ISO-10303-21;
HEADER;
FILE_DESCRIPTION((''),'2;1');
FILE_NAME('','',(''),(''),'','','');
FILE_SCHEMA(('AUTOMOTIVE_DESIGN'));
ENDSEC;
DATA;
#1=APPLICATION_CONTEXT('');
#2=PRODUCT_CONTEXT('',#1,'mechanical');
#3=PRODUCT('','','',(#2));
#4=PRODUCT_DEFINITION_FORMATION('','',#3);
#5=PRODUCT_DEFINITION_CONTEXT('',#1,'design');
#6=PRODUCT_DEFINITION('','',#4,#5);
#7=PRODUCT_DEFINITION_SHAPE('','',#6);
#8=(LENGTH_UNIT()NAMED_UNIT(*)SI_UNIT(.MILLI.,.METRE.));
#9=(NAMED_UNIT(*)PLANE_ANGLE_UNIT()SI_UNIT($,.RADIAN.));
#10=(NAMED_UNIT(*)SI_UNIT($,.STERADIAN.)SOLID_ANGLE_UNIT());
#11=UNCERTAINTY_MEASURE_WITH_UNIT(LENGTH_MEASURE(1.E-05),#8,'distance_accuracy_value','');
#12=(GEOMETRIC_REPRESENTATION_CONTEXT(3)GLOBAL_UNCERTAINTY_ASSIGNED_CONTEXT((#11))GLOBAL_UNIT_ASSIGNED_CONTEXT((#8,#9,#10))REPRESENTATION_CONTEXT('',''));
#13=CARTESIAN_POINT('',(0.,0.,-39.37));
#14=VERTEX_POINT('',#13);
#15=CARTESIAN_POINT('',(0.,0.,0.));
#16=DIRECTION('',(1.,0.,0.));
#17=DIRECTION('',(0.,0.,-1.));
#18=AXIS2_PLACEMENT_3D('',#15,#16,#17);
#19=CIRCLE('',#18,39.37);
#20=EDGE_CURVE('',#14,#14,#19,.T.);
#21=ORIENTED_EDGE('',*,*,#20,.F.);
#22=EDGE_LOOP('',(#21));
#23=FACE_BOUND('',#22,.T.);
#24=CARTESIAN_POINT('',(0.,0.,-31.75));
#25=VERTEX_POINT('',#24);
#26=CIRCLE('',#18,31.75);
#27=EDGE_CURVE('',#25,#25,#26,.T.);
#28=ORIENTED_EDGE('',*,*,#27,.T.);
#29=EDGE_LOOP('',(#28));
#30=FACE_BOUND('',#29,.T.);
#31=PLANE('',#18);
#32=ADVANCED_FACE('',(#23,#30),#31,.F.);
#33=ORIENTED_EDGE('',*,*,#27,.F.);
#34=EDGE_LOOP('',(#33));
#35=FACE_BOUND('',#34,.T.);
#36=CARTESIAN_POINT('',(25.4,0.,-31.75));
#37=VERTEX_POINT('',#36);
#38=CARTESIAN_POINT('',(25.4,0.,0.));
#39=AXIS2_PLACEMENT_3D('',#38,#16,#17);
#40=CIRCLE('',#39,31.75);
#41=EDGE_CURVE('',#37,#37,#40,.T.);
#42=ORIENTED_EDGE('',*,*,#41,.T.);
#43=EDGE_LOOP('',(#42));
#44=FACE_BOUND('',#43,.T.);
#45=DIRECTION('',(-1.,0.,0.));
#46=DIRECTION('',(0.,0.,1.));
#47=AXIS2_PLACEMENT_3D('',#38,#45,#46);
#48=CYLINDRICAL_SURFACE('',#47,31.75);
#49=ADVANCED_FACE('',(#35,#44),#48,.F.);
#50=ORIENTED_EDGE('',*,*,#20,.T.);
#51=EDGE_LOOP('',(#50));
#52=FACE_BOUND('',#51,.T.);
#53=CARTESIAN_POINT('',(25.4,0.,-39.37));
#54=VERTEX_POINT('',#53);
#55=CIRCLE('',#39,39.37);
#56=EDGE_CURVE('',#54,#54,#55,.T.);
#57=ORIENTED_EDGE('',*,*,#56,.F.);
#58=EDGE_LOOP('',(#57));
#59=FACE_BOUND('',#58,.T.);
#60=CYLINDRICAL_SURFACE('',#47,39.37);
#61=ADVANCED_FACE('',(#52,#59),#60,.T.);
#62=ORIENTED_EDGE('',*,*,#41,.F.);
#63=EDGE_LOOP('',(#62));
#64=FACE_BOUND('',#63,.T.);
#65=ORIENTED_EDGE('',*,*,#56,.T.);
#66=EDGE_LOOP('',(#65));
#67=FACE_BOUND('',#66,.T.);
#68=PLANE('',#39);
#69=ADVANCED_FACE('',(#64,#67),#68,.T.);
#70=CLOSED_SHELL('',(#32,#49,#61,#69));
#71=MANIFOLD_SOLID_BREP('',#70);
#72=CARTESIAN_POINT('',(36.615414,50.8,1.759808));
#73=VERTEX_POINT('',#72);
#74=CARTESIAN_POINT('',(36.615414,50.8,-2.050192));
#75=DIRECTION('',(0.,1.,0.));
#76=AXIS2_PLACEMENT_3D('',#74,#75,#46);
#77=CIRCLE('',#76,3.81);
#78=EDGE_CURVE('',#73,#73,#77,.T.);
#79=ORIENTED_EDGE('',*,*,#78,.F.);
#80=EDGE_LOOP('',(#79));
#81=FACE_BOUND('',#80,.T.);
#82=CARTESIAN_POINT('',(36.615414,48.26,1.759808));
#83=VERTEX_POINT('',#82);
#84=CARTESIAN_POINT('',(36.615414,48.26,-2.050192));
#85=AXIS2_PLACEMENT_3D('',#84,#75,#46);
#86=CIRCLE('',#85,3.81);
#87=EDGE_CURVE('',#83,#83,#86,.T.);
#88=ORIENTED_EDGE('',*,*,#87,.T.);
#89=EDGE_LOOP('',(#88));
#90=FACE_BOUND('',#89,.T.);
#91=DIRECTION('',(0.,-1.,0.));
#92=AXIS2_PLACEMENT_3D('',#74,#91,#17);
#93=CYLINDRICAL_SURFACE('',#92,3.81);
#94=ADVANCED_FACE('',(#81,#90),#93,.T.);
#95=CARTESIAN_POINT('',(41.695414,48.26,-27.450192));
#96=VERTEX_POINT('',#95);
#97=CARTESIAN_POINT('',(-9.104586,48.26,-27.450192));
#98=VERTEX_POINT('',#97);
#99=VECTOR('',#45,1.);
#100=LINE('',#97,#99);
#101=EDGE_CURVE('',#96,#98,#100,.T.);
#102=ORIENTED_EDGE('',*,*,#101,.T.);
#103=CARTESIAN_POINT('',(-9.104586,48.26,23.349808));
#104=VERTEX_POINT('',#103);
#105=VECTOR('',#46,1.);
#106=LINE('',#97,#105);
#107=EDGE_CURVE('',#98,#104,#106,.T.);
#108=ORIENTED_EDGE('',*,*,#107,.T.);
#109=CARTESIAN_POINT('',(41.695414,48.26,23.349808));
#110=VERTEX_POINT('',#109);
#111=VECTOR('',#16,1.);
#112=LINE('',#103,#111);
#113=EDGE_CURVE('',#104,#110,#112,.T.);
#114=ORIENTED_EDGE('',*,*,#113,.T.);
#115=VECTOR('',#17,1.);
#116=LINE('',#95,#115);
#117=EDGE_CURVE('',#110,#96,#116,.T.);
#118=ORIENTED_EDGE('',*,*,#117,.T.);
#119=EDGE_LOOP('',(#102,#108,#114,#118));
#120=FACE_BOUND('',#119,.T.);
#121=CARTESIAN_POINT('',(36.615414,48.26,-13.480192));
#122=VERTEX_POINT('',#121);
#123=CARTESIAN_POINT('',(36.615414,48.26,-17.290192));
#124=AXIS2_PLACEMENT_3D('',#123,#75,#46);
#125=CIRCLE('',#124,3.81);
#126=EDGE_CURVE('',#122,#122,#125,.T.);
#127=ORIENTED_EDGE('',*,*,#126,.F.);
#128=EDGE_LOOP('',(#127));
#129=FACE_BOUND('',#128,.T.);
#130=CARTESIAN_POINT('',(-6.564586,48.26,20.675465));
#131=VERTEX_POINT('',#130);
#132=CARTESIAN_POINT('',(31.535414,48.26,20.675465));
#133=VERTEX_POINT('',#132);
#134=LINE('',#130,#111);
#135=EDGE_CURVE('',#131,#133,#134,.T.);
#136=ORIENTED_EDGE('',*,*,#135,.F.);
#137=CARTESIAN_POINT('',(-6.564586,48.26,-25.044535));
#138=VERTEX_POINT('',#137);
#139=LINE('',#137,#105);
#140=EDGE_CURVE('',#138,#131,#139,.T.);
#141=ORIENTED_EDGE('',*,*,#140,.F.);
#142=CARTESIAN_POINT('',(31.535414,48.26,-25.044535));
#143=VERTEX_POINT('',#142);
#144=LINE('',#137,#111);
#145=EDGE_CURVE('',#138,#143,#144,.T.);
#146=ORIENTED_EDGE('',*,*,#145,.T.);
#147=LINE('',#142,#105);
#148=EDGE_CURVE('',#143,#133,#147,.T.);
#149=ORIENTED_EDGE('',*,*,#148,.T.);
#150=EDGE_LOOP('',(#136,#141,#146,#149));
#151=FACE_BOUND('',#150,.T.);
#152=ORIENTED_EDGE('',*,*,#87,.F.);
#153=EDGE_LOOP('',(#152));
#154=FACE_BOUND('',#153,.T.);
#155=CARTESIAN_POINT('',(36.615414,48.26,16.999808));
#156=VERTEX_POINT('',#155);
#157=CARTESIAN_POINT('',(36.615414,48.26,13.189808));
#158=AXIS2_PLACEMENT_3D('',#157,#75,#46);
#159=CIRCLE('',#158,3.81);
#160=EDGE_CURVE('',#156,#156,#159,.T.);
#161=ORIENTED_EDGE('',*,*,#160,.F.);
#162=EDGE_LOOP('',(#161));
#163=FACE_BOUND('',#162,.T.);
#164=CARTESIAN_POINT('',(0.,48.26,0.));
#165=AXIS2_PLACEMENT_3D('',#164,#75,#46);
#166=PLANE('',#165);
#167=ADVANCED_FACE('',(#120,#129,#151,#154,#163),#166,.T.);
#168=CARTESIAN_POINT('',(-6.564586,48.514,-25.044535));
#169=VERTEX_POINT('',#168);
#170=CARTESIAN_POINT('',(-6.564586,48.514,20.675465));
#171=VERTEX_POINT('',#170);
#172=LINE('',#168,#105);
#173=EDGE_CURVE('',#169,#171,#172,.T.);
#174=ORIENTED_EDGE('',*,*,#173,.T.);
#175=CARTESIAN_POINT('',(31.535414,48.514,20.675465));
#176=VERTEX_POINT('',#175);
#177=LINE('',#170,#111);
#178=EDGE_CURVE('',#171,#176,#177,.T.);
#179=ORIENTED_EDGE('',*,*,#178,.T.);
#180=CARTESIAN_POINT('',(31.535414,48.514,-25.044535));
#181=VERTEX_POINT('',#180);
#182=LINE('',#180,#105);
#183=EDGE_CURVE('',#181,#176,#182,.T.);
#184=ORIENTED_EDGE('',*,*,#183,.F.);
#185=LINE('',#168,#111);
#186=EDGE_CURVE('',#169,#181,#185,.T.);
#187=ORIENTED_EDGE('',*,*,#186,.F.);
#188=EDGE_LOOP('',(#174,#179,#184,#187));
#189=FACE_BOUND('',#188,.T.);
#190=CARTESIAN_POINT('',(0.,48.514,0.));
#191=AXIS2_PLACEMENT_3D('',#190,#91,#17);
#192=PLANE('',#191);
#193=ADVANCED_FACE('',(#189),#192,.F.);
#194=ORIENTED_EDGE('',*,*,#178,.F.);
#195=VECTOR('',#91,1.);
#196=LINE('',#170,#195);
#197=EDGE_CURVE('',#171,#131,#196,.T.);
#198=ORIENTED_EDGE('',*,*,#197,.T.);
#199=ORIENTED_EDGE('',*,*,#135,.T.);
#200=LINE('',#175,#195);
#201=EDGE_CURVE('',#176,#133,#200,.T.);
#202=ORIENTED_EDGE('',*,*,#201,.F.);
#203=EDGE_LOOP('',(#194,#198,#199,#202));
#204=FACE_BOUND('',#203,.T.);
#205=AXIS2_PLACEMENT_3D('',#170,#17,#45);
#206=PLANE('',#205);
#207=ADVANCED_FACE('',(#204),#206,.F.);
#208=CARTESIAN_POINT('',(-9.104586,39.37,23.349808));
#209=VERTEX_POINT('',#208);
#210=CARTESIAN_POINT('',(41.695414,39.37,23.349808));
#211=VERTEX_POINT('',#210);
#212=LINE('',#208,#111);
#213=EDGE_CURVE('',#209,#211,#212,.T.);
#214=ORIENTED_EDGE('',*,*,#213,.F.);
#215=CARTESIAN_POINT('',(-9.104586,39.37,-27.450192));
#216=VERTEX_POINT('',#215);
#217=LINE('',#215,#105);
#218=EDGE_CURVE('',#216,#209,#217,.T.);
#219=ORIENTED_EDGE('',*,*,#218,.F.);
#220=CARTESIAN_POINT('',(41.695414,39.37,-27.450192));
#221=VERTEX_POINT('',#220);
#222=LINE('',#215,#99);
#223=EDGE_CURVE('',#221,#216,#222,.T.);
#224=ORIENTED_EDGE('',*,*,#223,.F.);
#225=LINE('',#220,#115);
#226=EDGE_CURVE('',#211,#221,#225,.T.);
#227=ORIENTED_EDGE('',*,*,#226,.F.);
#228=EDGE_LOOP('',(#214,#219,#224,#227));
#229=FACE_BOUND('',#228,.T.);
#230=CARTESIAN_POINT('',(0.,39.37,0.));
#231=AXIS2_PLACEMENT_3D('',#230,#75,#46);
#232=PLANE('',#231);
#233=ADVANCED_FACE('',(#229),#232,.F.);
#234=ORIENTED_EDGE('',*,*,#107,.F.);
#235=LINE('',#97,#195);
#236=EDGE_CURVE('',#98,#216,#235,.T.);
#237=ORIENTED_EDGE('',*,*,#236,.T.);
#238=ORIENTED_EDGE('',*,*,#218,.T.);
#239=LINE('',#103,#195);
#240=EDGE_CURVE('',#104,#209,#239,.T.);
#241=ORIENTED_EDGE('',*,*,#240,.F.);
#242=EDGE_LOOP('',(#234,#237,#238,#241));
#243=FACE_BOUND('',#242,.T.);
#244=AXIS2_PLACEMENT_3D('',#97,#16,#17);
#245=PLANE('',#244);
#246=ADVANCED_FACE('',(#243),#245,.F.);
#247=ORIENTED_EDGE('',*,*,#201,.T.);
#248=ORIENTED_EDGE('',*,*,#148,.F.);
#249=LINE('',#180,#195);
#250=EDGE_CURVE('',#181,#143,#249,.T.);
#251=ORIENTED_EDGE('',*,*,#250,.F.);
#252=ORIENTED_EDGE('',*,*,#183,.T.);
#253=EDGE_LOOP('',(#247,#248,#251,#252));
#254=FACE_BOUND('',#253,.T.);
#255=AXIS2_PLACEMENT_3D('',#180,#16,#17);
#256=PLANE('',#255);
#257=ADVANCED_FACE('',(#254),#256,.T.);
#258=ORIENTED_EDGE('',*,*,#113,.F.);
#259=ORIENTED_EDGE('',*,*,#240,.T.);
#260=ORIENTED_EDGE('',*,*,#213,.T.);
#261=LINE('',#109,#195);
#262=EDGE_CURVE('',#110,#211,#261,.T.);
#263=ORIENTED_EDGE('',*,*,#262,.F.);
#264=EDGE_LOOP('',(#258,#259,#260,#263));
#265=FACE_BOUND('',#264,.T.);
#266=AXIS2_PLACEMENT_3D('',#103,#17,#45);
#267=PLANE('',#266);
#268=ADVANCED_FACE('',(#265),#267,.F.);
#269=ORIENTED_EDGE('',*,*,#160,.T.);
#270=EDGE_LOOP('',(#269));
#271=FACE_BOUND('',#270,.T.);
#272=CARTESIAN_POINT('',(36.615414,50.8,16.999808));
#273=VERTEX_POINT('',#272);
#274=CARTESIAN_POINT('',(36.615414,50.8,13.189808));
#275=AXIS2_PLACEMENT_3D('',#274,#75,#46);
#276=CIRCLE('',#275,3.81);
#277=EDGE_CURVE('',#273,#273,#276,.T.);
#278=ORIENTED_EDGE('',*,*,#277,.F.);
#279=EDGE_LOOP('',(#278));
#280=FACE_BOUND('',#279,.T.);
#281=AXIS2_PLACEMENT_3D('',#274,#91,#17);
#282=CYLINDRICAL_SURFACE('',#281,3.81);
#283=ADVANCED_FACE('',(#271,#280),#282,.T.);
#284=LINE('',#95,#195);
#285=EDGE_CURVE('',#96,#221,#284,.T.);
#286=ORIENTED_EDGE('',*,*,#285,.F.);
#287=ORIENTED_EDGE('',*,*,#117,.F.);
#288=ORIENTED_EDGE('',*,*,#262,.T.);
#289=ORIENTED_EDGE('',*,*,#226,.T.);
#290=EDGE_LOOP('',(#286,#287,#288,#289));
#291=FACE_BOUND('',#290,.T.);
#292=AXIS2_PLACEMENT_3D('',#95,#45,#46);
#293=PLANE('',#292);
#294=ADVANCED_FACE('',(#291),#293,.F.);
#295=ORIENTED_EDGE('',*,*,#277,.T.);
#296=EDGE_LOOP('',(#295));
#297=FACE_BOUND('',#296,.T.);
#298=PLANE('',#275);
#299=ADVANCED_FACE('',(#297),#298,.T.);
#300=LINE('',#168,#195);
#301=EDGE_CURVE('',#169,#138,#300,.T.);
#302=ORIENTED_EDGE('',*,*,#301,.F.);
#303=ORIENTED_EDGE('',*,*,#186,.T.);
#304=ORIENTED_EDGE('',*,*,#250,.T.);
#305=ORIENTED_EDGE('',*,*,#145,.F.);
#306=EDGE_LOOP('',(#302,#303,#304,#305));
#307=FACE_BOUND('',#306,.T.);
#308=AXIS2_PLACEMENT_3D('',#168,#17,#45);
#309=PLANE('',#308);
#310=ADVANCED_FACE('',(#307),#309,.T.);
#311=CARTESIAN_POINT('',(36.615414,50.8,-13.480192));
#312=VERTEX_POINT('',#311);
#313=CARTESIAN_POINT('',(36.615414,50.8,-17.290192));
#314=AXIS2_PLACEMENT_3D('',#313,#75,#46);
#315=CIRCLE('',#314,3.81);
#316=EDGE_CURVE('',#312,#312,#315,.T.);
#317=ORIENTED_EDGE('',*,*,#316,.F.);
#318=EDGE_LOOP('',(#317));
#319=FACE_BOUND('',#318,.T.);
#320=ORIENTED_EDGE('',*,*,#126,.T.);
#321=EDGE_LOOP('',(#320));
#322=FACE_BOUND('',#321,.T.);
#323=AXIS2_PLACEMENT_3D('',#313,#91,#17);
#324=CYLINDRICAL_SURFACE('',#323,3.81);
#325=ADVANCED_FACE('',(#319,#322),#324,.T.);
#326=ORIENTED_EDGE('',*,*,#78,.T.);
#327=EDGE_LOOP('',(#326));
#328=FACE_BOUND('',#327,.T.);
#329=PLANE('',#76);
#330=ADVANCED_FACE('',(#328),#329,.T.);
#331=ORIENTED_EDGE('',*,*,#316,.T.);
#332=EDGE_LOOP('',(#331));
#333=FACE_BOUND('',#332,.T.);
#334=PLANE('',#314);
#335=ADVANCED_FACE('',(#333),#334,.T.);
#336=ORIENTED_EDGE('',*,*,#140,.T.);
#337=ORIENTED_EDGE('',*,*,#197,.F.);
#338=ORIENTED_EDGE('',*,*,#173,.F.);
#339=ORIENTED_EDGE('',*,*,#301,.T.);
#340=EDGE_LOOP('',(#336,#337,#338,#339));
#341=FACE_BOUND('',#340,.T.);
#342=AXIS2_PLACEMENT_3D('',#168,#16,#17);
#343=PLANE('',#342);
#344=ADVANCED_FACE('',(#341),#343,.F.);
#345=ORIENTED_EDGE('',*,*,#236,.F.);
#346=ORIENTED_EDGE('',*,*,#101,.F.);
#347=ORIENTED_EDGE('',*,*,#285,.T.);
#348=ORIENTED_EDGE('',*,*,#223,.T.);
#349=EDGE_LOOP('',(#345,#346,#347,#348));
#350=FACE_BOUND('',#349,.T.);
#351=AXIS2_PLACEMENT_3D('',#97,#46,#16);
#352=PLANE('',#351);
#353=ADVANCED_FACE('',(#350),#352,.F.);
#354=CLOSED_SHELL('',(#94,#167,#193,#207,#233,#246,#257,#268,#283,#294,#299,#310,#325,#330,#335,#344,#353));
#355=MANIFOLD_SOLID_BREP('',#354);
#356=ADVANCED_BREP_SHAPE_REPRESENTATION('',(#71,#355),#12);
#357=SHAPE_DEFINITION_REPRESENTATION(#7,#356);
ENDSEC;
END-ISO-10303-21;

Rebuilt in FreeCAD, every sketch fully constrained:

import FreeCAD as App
import Part
import Sketcher
from FreeCAD import Vector
Q = App.Units.Quantity

doc = App.newDocument("Part")
body = doc.addObject("PartDesign::Body", "Body")

sketch1 = doc.addObject("Sketcher::SketchObject", "Sketch")
body.addObject(sketch1)
sketch1.AttachmentSupport = (doc.YZ_Plane, [""])
sketch1.MapMode = "FlatFace"
sketch1.addGeometry([
    Part.Circle(Vector(0, 0, 0), Vector(0, 0, 1), 39),
    Part.Circle(Vector(0, 0, 0), Vector(0, 0, 1), 32),
], False)
sketch1.addConstraint([
    Sketcher.Constraint("Coincident", 0, 3, -1, 1),
    Sketcher.Constraint("Coincident", 1, 3, -1, 1),
    Sketcher.Constraint("Diameter", 0, Q("3.1 in")),
    Sketcher.Constraint("Diameter", 1, Q("2.5 in")),
])
pad1 = doc.addObject("PartDesign::Pad", "Pad")
body.addObject(pad1)
pad1.Profile = sketch1
pad1.Length = Q("1 in")
body2 = doc.addObject("PartDesign::Body", "Body001")

sketch2 = doc.addObject("Sketcher::SketchObject", "Sketch001")
body2.addObject(sketch2)
sketch2.AttachmentSupport = (doc.getObject("XZ_Plane001"), [""])
sketch2.MapMode = "FlatFace"
sketch2.AttachmentOffset = App.Placement(Vector(0, 0, -1.55 * 25.4), App.Rotation())
sketch2.addGeometry([
    Part.LineSegment(Vector(-9, -27, 0), Vector(-9, 23, 0)),
    Part.LineSegment(Vector(-9, 23, 0), Vector(42, 23, 0)),
    Part.LineSegment(Vector(42, 23, 0), Vector(42, -27, 0)),
    Part.LineSegment(Vector(42, -27, 0), Vector(-9, -27, 0)),
], False)
sketch2.addConstraint([
    Sketcher.Constraint("Coincident", 0, 2, 1, 1),
    Sketcher.Constraint("Coincident", 1, 2, 2, 1),
    Sketcher.Constraint("Coincident", 2, 2, 3, 1),
    Sketcher.Constraint("Coincident", 3, 2, 0, 1),
    Sketcher.Constraint("Vertical", 0),
    Sketcher.Constraint("Horizontal", 1),
    Sketcher.Constraint("Vertical", 2),
    Sketcher.Constraint("Horizontal", 3),
    Sketcher.Constraint("Equal", 3, 0),
    Sketcher.Constraint("DistanceX", 1, 1, 1, 2, Q("2 in")),
    Sketcher.Constraint("DistanceX", 0, 2, -1, 1, Q("9.104586 mm")),
    Sketcher.Constraint("DistanceY", -1, 1, 0, 2, Q("23.349808 mm")),
])
pad2 = doc.addObject("PartDesign::Pad", "Pad001")
body2.addObject(pad2)
pad2.Profile = sketch2
pad2.Length = Q("0.35 in")
pad2.Reversed = True

sketch3 = doc.addObject("Sketcher::SketchObject", "Sketch002")
body2.addObject(sketch3)
sketch3.AttachmentSupport = (doc.getObject("XZ_Plane001"), [""])
sketch3.MapMode = "FlatFace"
sketch3.AttachmentOffset = App.Placement(Vector(0, 0, -1.9 * 25.4), App.Rotation())
sketch3.addGeometry([
    Part.LineSegment(Vector(-7, -25, 0), Vector(-7, 21, 0)),
    Part.LineSegment(Vector(-7, 21, 0), Vector(32, 21, 0)),
    Part.LineSegment(Vector(32, 21, 0), Vector(32, -25, 0)),
    Part.LineSegment(Vector(32, -25, 0), Vector(-7, -25, 0)),
], False)
sketch3.addConstraint([
    Sketcher.Constraint("Coincident", 0, 2, 1, 1),
    Sketcher.Constraint("Coincident", 1, 2, 2, 1),
    Sketcher.Constraint("Coincident", 2, 2, 3, 1),
    Sketcher.Constraint("Coincident", 3, 2, 0, 1),
    Sketcher.Constraint("Vertical", 0),
    Sketcher.Constraint("Horizontal", 1),
    Sketcher.Constraint("Vertical", 2),
    Sketcher.Constraint("Horizontal", 3),
    Sketcher.Constraint("DistanceX", 1, 1, 1, 2, Q("1.5 in")),
    Sketcher.Constraint("DistanceY", 0, 1, 0, 2, Q("1.8 in")),
    Sketcher.Constraint("DistanceX", 0, 2, -1, 1, Q("6.564586 mm")),
    Sketcher.Constraint("DistanceY", -1, 1, 0, 2, Q("20.675465 mm")),
])
pad3 = doc.addObject("PartDesign::Pad", "Pad002")
body2.addObject(pad3)
pad3.Profile = sketch3
pad3.Length = Q("0.01 in")
pad3.Reversed = True

sketch4 = doc.addObject("Sketcher::SketchObject", "Sketch003")
body2.addObject(sketch4)
sketch4.AttachmentSupport = (doc.getObject("XZ_Plane001"), [""])
sketch4.MapMode = "FlatFace"
sketch4.AttachmentOffset = App.Placement(Vector(0, 0, -1.9 * 25.4), App.Rotation())
sketch4.addGeometry([
    Part.Circle(Vector(36.6, -17.3, 0), Vector(0, 0, 1), 3.8),
    Part.Circle(Vector(36.6, 13.2, 0), Vector(0, 0, 1), 3.8),
    Part.Circle(Vector(36.6, -2.1, 0), Vector(0, 0, 1), 3.8),
], False)
sketch4.addConstraint([
    Sketcher.Constraint("Equal", 0, 1),
    Sketcher.Constraint("Equal", 1, 2),
    Sketcher.Constraint("Vertical", 0, 3, 1, 3),
    Sketcher.Constraint("Vertical", 1, 3, 2, 3),
    Sketcher.Constraint("Diameter", 0, Q("0.3 in")),
    Sketcher.Constraint("DistanceY", 0, 3, 1, 3, Q("1.2 in")),
    Sketcher.Constraint("DistanceY", 2, 3, 1, 3, Q("0.6 in")),
    Sketcher.Constraint("DistanceX", -1, 1, 0, 3, Q("36.615414 mm")),
    Sketcher.Constraint("DistanceY", 0, 3, -1, 1, Q("17.290192 mm")),
])
pad4 = doc.addObject("PartDesign::Pad", "Pad003")
body2.addObject(pad4)
pad4.Profile = sketch4
pad4.Length = Q("0.1 in")
pad4.Reversed = True

doc.recompute()
